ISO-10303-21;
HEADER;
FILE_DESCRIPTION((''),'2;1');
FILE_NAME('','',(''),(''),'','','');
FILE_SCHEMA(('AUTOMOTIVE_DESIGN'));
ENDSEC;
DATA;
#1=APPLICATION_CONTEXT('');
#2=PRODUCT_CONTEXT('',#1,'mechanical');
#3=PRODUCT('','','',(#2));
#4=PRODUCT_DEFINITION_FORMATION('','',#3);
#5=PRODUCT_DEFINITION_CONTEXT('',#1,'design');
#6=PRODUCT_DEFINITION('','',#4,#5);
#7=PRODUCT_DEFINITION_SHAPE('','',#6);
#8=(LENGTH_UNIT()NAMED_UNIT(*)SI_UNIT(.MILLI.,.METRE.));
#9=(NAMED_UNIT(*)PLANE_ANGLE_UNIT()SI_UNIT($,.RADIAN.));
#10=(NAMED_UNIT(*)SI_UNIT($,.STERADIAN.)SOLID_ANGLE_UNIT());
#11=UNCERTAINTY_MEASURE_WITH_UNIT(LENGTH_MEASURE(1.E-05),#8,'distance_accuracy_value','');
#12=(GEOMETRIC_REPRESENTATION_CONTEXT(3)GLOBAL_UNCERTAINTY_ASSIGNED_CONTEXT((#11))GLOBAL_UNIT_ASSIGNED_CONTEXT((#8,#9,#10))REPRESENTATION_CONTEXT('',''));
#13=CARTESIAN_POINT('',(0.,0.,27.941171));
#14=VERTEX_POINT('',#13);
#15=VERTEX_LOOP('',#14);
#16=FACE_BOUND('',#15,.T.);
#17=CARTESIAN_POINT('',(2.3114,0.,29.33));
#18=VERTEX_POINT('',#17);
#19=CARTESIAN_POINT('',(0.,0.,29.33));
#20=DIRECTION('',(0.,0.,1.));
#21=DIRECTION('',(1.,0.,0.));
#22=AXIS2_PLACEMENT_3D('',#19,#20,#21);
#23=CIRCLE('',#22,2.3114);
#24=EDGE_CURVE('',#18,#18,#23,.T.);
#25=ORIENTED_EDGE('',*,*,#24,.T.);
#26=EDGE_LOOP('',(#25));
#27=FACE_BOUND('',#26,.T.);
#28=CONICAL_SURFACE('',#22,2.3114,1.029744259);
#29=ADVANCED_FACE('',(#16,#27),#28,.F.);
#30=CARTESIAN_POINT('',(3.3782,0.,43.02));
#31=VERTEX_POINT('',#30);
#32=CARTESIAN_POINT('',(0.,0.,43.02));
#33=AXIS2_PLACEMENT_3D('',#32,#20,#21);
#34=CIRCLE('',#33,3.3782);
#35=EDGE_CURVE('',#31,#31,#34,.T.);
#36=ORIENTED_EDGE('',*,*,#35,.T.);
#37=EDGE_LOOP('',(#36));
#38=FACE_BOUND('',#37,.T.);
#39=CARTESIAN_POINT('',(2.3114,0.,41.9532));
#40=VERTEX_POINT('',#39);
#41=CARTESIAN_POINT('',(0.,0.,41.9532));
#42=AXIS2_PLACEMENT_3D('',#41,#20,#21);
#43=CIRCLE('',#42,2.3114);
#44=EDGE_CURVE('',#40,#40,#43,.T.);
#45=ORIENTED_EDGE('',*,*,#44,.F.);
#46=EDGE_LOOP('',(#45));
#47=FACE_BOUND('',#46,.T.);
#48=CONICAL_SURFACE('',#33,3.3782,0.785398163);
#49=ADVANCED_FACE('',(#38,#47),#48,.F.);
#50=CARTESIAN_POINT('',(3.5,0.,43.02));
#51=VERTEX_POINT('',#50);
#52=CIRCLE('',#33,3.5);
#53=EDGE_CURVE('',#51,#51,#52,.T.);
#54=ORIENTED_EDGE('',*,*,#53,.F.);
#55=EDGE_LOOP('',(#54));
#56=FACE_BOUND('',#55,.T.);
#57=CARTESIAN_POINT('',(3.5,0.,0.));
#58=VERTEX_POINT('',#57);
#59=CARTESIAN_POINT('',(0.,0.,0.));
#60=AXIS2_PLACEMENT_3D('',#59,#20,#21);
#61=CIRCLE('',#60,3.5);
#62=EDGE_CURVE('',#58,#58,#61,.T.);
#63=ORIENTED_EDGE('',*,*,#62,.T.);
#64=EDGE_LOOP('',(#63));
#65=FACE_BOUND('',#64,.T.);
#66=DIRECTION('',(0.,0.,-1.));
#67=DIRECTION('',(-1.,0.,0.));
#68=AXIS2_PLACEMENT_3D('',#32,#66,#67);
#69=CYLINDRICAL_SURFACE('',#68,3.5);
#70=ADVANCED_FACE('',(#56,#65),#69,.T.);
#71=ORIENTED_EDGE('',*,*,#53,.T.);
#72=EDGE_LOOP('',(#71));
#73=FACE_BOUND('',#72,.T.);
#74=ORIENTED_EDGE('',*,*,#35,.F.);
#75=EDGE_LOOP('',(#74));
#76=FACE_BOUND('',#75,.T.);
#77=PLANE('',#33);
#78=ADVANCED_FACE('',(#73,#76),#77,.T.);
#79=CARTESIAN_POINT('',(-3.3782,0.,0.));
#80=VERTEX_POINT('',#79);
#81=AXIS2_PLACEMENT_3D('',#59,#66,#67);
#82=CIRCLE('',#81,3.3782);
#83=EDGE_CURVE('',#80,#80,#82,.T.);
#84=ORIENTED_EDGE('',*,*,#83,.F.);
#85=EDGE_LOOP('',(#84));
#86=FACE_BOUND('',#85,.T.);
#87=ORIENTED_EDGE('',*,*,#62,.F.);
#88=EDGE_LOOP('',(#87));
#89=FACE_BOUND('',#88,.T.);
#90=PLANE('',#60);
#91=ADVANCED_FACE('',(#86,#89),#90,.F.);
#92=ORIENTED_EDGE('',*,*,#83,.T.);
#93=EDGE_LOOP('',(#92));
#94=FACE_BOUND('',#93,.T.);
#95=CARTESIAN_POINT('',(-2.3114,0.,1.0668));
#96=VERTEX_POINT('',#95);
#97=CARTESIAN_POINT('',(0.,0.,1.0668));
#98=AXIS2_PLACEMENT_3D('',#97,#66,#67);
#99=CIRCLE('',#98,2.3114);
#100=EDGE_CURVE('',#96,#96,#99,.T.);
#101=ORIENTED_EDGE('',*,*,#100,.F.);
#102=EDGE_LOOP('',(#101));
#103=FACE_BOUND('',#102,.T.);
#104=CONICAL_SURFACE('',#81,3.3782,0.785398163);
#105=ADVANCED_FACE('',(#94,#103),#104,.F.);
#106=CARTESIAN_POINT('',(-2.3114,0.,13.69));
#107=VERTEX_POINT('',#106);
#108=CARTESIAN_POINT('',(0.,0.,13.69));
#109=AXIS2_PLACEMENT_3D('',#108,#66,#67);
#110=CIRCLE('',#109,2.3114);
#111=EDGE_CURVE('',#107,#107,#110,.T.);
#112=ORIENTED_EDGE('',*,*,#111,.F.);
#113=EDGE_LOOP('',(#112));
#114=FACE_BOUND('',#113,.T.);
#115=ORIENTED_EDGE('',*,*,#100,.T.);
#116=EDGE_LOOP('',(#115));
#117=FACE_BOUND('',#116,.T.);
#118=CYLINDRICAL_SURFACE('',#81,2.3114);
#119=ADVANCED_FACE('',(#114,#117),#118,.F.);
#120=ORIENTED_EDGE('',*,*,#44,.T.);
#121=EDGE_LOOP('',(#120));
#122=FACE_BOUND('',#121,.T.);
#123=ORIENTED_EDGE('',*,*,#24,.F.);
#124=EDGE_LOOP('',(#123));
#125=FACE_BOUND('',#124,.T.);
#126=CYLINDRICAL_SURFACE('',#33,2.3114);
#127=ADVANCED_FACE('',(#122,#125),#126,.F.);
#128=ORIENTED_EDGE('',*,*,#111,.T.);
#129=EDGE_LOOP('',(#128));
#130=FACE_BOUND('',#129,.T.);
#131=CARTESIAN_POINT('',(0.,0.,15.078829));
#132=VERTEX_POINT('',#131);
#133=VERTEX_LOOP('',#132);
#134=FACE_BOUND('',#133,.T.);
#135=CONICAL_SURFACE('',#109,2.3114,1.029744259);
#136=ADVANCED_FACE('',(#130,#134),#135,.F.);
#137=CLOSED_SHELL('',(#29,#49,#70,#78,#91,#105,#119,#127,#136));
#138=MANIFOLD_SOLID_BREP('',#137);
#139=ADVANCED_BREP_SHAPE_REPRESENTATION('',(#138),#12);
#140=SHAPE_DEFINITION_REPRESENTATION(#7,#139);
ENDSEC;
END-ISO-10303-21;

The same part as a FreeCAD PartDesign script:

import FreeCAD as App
import Part
import Sketcher
Q = App.Units.Quantity

doc = App.newDocument("Part")
body = doc.addObject("PartDesign::Body", "Body")

# Sketch on XY plane
sketch1 = doc.addObject("Sketcher::SketchObject", "Sketch")
body.addObject(sketch1)
sketch1.AttachmentSupport = (doc.XY_Plane, [""])
sketch1.MapMode = "FlatFace"
sketch1.addGeometry(Part.Circle(App.Vector(0, 0, 0), App.Vector(0, 0, 1), 3.5), False)
sketch1.addConstraint(Sketcher.Constraint("Coincident", 0, 3, -1, 1))
sketch1.addConstraint(Sketcher.Constraint("Diameter", 0, 7.0))
pad1 = doc.addObject("PartDesign::Pad", "Pad")
body.addObject(pad1)
pad1.Profile = sketch1
pad1.Length = 43.02

# Sketch on YZ plane
sketch2 = doc.addObject("Sketcher::SketchObject", "Sketch001")
body.addObject(sketch2)
sketch2.AttachmentSupport = (doc.YZ_Plane, [""])
sketch2.MapMode = "FlatFace"
sketch2.addGeometry(Part.LineSegment(App.Vector(0, 27.9, 0), App.Vector(0, 43, 0)), False)
sketch2.addGeometry(Part.LineSegment(App.Vector(0, 43, 0), App.Vector(-3.4, 43, 0)), False)
sketch2.addGeometry(Part.LineSegment(App.Vector(-3.4, 43, 0), App.Vector(-2.3, 42, 0)), False)
sketch2.addGeometry(Part.LineSegment(App.Vector(-2.3, 42, 0), App.Vector(-2.3, 29.3, 0)), False)
sketch2.addGeometry(Part.LineSegment(App.Vector(-2.3, 29.3, 0), App.Vector(0, 27.9, 0)), False)
sketch2.addConstraint(Sketcher.Constraint("Coincident", 0, 2, 1, 1))
sketch2.addConstraint(Sketcher.Constraint("Coincident", 1, 2, 2, 1))
sketch2.addConstraint(Sketcher.Constraint("Coincident", 2, 2, 3, 1))
sketch2.addConstraint(Sketcher.Constraint("Coincident", 3, 2, 4, 1))
sketch2.addConstraint(Sketcher.Constraint("Coincident", 4, 2, 0, 1))
sketch2.addConstraint(Sketcher.Constraint("Vertical", 0))
sketch2.addConstraint(Sketcher.Constraint("Horizontal", 1))
sketch2.addConstraint(Sketcher.Constraint("Vertical", 3))
sketch2.addConstraint(Sketcher.Constraint("PointOnObject", 0, 2, -2))
sketch2.addConstraint(Sketcher.Constraint("Angle", 2, Q("-45 deg")))
sketch2.addConstraint(Sketcher.Constraint("Angle", 4, Q("-31 deg")))
sketch2.addConstraint(Sketcher.Constraint("DistanceY", -1, 1, 0, 2, 43.02))
sketch2.addConstraint(Sketcher.Constraint("DistanceY", -1, 1, 3, 2, 29.33))
sketch2.addConstraint(Sketcher.Constraint("DistanceX", 1, 2, 1, 1, 3.3782))
sketch2.addConstraint(Sketcher.Constraint("DistanceY", 3, 2, 3, 1, 12.6232))
groove = doc.addObject("PartDesign::Groove", "Groove")
body.addObject(groove)
groove.Profile = sketch2
groove.ReferenceAxis = (sketch2, ["V_Axis"])
groove.Angle = 360
doc.recompute()

datumplane = doc.addObject("PartDesign::Plane", "DatumPlane")
body.addObject(datumplane)
datumplane.AttachmentSupport = (doc.XY_Plane, [""])
datumplane.MapMode = "FlatFace"
datumplane.AttachmentOffset = App.Placement(App.Vector(0, 0, 21.51), App.Rotation())
mirrored = doc.addObject("PartDesign::Mirrored", "Mirrored")
body.addObject(mirrored)
mirrored.Originals = [groove]
mirrored.MirrorPlane = (datumplane, [""])
body.Tip = mirrored

doc.recompute()
